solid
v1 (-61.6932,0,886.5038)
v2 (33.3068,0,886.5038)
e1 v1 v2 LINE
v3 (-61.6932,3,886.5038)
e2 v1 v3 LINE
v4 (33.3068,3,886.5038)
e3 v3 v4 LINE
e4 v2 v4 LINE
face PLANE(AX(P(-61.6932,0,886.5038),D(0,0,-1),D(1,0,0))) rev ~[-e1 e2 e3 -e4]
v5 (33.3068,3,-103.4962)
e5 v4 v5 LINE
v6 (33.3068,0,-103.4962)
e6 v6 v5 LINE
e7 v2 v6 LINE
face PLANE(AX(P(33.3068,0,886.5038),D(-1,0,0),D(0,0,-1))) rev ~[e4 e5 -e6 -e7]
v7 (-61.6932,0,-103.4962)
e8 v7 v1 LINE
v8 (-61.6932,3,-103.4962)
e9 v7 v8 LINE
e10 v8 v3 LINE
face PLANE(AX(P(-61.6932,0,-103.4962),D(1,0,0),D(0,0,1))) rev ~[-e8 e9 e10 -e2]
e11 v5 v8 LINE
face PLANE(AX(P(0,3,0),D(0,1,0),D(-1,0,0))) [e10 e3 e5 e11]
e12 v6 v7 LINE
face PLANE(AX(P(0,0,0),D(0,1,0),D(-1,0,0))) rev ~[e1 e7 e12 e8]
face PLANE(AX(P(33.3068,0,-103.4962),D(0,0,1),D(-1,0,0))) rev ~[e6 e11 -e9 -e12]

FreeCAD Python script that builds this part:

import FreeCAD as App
import Part
import Sketcher
from FreeCAD import Vector
Q = App.Units.Quantity

doc = App.newDocument("Part")
body = doc.addObject("PartDesign::Body", "Body")

sketch1 = body.newObject("Sketcher::SketchObject", "Sketch")
sketch1.AttachmentSupport = (doc.getObject("XZ_Plane"), [""])
sketch1.MapMode = "FlatFace"
sketch1.addGeometry(Part.LineSegment(Vector(-62, -103, 0), Vector(-62, 887, 0)), False)
sketch1.addGeometry(Part.LineSegment(Vector(-62, 887, 0), Vector(33, 887, 0)), False)
sketch1.addGeometry(Part.LineSegment(Vector(33, 887, 0), Vector(33, -103, 0)), False)
sketch1.addGeometry(Part.LineSegment(Vector(33, -103, 0), Vector(-62, -103, 0)), False)
sketch1.addConstraint(Sketcher.Constraint("Coincident", 0, 2, 1, 1))
sketch1.addConstraint(Sketcher.Constraint("Coincident", 1, 2, 2, 1))
sketch1.addConstraint(Sketcher.Constraint("Coincident", 2, 2, 3, 1))
sketch1.addConstraint(Sketcher.Constraint("Coincident", 3, 2, 0, 1))
sketch1.addConstraint(Sketcher.Constraint("Vertical", 0))
sketch1.addConstraint(Sketcher.Constraint("Horizontal", 1))
sketch1.addConstraint(Sketcher.Constraint("Vertical", 2))
sketch1.addConstraint(Sketcher.Constraint("Horizontal", 3))
sketch1.addConstraint(Sketcher.Constraint("DistanceX", 1, 1, 1, 2, Q("95 mm")))
sketch1.addConstraint(Sketcher.Constraint("DistanceY", 0, 1, 0, 2, Q("990 mm")))
sketch1.addConstraint(Sketcher.Constraint("DistanceX", 0, 2, -1, 1, Q("61.6932 mm")))
sketch1.addConstraint(Sketcher.Constraint("DistanceY", -1, 1, 0, 2, Q("886.5038 mm")))
pad1 = body.newObject("PartDesign::Pad", "Pad")
pad1.Profile = sketch1
pad1.Length = 3
pad1.Reversed = True

doc.recompute()
